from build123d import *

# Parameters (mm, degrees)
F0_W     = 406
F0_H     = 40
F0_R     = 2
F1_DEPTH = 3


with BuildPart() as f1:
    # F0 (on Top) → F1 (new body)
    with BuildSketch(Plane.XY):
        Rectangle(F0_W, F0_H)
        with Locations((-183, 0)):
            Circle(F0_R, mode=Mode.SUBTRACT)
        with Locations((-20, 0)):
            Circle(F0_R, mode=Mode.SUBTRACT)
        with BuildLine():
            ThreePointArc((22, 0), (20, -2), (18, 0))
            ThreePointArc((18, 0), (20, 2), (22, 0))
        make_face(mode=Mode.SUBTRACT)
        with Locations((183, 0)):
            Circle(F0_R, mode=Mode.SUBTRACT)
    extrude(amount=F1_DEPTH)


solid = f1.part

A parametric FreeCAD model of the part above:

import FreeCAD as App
import Part
import Sketcher

doc = App.newDocument("Part")
body = doc.addObject("PartDesign::Body", "Body")

# Sketch on XY plane
sketch1 = body.newObject("Sketcher::SketchObject", "Sketch")
sketch1.AttachmentSupport = (doc.getObject("XY_Plane"), [""])
sketch1.MapMode = "FlatFace"
sketch1.addGeometry([
    Part.LineSegment(App.Vector(-203, 20, 0), App.Vector(-203, -20, 0)),  # 0
    Part.LineSegment(App.Vector(-203, -20, 0), App.Vector(203, -20, 0)),  # 1
    Part.LineSegment(App.Vector(203, -20, 0), App.Vector(203, 20, 0)),  # 2
    Part.LineSegment(App.Vector(203, 20, 0), App.Vector(-203, 20, 0)),  # 3
    Part.Circle(App.Vector(-183, 0, 0), App.Vector(0, 0, 1), 2),  # 4
    Part.Circle(App.Vector(-20, 0, 0), App.Vector(0, 0, 1), 2),  # 5
    Part.Circle(App.Vector(20, 0, 0), App.Vector(0, 0, 1), 2),  # 6
    Part.Circle(App.Vector(183, 0, 0), App.Vector(0, 0, 1), 2),  # 7
], False)
sketch1.addConstraint([
    Sketcher.Constraint("Coincident", 0, 2, 1, 1),
    Sketcher.Constraint("Coincident", 1, 2, 2, 1),
    Sketcher.Constraint("Coincident", 2, 2, 3, 1),
    Sketcher.Constraint("Coincident", 3, 2, 0, 1),
    Sketcher.Constraint("Vertical", 0),
    Sketcher.Constraint("Horizontal", 1),
    Sketcher.Constraint("Vertical", 2),
    Sketcher.Constraint("Horizontal", 3),
    Sketcher.Constraint("Equal", 4, 5),
    Sketcher.Constraint("Equal", 5, 6),
    Sketcher.Constraint("Equal", 6, 7),
    Sketcher.Constraint("Symmetric", 5, 3, 6, 3, -1, 1),
    Sketcher.Constraint("Symmetric", 4, 3, 7, 3, -1, 1),
    Sketcher.Constraint("Symmetric", 0, 2, 2, 2, -1, 1),
    Sketcher.Constraint("PointOnObject", 4, 3, -1),
    Sketcher.Constraint("PointOnObject", 5, 3, -1),
    Sketcher.Constraint("Diameter", 4, 4.0),
    Sketcher.Constraint("DistanceX", 1, 1, 1, 2, 406.0),
    Sketcher.Constraint("DistanceY", 0, 2, 0, 1, 40.0),
    Sketcher.Constraint("DistanceX", 4, 3, -1, 1, 183.0),
    Sketcher.Constraint("DistanceX", 5, 3, -1, 1, 20.0),
])
pad1 = body.newObject("PartDesign::Pad", "Pad")
pad1.Profile = sketch1
pad1.Length = 3

doc.recompute()
